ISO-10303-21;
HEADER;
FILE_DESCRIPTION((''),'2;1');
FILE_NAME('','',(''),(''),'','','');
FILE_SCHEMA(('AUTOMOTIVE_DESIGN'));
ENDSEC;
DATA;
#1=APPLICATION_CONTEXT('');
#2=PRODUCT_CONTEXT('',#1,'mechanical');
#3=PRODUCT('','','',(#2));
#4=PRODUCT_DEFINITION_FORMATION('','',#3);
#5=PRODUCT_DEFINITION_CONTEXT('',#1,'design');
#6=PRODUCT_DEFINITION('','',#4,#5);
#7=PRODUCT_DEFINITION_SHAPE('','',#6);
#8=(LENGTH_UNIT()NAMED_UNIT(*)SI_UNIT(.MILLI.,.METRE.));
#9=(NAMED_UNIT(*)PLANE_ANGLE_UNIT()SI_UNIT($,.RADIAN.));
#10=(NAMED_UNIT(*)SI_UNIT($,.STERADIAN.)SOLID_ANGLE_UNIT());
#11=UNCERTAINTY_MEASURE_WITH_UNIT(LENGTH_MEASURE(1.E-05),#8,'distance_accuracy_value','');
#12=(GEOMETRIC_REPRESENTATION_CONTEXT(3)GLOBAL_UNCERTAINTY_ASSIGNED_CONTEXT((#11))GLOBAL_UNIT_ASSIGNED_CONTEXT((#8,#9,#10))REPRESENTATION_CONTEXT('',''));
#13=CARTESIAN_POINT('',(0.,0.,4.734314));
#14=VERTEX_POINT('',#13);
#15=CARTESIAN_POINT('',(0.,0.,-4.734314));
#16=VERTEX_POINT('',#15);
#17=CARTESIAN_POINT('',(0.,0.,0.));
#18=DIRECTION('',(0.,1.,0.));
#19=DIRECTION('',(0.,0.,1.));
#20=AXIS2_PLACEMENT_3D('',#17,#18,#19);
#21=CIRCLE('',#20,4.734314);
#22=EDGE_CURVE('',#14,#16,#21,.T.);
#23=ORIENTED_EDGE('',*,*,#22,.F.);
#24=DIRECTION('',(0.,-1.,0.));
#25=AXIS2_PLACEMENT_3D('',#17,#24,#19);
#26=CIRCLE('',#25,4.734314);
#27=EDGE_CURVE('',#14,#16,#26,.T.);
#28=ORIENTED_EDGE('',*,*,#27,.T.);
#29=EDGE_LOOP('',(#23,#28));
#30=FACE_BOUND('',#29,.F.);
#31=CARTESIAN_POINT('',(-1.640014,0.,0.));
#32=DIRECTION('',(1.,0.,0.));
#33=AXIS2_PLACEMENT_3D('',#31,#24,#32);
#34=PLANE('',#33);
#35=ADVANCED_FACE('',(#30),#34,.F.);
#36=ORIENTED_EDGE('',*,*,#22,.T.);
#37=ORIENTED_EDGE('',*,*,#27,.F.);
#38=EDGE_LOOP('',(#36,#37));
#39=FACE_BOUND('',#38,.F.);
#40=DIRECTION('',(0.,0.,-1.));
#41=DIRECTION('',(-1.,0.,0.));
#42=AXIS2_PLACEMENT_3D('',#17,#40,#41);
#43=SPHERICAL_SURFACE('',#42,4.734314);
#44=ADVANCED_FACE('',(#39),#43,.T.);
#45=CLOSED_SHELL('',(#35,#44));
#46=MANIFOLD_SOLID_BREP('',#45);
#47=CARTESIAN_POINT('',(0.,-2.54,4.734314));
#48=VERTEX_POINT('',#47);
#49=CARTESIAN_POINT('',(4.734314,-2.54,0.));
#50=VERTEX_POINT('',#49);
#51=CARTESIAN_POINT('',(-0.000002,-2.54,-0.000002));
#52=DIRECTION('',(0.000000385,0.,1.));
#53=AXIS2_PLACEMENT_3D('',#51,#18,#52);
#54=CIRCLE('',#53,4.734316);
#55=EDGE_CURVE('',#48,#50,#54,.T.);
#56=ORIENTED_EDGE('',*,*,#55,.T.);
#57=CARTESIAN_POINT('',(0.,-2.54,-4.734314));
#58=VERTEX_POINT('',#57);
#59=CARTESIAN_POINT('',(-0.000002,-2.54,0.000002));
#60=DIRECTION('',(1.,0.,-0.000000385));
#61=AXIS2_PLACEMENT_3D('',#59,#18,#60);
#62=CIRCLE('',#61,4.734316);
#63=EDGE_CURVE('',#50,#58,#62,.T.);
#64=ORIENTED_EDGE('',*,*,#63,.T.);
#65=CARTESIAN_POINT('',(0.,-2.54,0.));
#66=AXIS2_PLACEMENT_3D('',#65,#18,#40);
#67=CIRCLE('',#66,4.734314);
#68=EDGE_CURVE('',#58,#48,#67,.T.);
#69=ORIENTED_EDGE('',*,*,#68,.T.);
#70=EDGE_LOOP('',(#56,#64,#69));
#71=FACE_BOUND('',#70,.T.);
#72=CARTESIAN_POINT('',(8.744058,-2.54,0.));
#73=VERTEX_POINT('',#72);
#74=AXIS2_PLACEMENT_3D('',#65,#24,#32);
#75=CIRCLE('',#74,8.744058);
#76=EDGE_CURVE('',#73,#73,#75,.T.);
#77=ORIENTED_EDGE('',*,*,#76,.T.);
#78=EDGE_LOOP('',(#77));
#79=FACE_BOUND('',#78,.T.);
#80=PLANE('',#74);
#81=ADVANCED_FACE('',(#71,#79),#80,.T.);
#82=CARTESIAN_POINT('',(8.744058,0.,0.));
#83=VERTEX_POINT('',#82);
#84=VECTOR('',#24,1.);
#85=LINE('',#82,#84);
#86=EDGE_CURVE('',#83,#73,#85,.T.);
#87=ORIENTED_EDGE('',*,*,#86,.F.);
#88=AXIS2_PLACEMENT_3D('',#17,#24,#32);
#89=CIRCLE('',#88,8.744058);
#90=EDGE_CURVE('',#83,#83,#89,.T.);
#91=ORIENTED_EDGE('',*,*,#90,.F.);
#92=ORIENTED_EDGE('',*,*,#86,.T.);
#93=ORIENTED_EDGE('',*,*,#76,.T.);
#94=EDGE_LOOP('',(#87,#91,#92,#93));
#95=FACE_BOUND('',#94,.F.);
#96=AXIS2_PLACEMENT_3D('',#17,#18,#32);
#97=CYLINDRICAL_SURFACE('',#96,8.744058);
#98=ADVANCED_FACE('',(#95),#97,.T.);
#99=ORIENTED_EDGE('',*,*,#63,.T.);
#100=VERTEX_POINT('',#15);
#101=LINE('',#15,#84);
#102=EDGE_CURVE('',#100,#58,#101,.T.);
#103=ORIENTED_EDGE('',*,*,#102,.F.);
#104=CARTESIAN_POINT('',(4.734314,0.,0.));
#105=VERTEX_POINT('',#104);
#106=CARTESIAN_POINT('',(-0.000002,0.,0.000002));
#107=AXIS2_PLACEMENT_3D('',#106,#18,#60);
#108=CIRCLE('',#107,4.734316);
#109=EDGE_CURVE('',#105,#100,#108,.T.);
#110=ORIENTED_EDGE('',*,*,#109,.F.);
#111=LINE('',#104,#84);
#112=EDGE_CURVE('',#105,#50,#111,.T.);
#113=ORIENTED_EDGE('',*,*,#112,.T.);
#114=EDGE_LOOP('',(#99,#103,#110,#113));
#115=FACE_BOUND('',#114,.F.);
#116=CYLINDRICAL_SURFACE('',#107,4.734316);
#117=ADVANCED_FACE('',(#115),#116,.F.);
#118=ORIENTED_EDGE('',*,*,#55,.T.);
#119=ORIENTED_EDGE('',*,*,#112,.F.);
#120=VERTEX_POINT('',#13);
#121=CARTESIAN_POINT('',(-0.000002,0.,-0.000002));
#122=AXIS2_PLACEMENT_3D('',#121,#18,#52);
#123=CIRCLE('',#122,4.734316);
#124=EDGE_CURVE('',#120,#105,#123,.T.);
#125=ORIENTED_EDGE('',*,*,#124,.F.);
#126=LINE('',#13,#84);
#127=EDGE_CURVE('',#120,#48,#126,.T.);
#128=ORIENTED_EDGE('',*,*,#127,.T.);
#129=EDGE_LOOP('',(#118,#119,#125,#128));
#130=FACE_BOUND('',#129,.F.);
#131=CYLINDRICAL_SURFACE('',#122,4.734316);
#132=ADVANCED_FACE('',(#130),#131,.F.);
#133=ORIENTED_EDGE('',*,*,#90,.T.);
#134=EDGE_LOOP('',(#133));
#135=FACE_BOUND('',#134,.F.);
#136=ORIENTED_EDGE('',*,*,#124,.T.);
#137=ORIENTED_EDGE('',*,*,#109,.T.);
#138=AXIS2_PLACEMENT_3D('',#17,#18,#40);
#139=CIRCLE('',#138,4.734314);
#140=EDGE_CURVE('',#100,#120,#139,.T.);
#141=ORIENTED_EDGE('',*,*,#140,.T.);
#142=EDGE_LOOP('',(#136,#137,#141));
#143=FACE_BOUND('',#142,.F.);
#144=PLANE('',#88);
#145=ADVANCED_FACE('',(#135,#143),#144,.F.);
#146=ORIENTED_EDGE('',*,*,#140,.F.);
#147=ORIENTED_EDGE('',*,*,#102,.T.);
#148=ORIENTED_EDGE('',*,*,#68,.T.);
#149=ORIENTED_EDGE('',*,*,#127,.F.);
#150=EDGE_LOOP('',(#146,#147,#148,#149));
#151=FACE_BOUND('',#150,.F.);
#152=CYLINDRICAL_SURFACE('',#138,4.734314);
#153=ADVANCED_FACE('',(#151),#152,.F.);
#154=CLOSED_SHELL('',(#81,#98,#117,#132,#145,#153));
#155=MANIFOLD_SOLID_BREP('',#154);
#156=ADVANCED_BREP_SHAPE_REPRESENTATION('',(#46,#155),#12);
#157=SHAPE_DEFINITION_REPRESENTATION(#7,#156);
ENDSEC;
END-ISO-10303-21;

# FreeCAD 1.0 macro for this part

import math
import FreeCAD as App
import Part
import Sketcher
from FreeCAD import Vector
Q = App.Units.Quantity

doc = App.newDocument("Part")
body = doc.addObject("PartDesign::Body", "Body")

# Sketch on XZ plane
sketch1 = body.newObject("Sketcher::SketchObject", "Sketch")
sketch1.AttachmentSupport = (doc.getObject("XZ_Plane"), [""])
sketch1.MapMode = "FlatFace"
sketch1.addGeometry(Part.Circle(Vector(0, 0, 0), Vector(0, 0, 1), 8.7), False)
sketch1.addGeometry(Part.ArcOfCircle(Part.Circle(Vector(0, 0, 0), Vector(0, 0, 1), 4.7), math.radians(90), math.radians(270)), False)
sketch1.addGeometry(Part.ArcOfCircle(Part.Circle(Vector(0, 0, 0), Vector(0, 0, 1), 4.7), math.radians(0), math.radians(90)), False)
sketch1.addGeometry(Part.ArcOfCircle(Part.Circle(Vector(0, 0, 0), Vector(0, 0, 1), 4.7), math.radians(-90), math.radians(0)), False)
sketch1.addConstraint(Sketcher.Constraint("Tangent", 1, 1, 2, 2))
sketch1.addConstraint(Sketcher.Constraint("Tangent", 2, 1, 3, 2))
sketch1.addConstraint(Sketcher.Constraint("Tangent", 3, 1, 1, 2))
sketch1.addConstraint(Sketcher.Constraint("Coincident", 0, 3, -1, 1))
sketch1.addConstraint(Sketcher.Constraint("Coincident", 1, 3, -1, 1))
sketch1.addConstraint(Sketcher.Constraint("PointOnObject", 1, 1, -2))
sketch1.addConstraint(Sketcher.Constraint("PointOnObject", 2, 1, -1))
sketch1.addConstraint(Sketcher.Constraint("PointOnObject", 3, 1, -2))
sketch1.addConstraint(Sketcher.Constraint("Diameter", 0, 17.488116))
sketch1.addConstraint(Sketcher.Constraint("Radius", 1, 4.734314))
pad1 = body.newObject("PartDesign::Pad", "Pad")
pad1.Profile = sketch1
pad1.Length = Q("0.1 in")
body2 = doc.addObject("PartDesign::Body", "Body001")

# Sketch on XZ plane
sketch2 = body2.newObject("Sketcher::SketchObject", "Sketch001")
sketch2.AttachmentSupport = (doc.getObject("XZ_Plane001"), [""])
sketch2.MapMode = "FlatFace"
sketch2.addGeometry(Part.LineSegment(Vector(0, -4.7, 0), Vector(0, 4.7, 0)), False)
sketch2.addGeometry(Part.ArcOfCircle(Part.Circle(Vector(0, 0, 0), Vector(0, 0, 1), 4.7), math.radians(90), math.radians(270)), False)
sketch2.addConstraint(Sketcher.Constraint("Coincident", 0, 1, 1, 2))
sketch2.addConstraint(Sketcher.Constraint("Coincident", 1, 1, 0, 2))
sketch2.addConstraint(Sketcher.Constraint("Vertical", 0))
sketch2.addConstraint(Sketcher.Constraint("Coincident", 1, 3, -1, 1))
sketch2.addConstraint(Sketcher.Constraint("PointOnObject", 0, 1, -2))
sketch2.addConstraint(Sketcher.Constraint("Radius", 1, 4.734314))
revolution = body2.newObject("PartDesign::Revolution", "Revolution")
revolution.Profile = sketch2
revolution.ReferenceAxis = (sketch2, ["V_Axis"])
revolution.Angle = 180

doc.recompute()
